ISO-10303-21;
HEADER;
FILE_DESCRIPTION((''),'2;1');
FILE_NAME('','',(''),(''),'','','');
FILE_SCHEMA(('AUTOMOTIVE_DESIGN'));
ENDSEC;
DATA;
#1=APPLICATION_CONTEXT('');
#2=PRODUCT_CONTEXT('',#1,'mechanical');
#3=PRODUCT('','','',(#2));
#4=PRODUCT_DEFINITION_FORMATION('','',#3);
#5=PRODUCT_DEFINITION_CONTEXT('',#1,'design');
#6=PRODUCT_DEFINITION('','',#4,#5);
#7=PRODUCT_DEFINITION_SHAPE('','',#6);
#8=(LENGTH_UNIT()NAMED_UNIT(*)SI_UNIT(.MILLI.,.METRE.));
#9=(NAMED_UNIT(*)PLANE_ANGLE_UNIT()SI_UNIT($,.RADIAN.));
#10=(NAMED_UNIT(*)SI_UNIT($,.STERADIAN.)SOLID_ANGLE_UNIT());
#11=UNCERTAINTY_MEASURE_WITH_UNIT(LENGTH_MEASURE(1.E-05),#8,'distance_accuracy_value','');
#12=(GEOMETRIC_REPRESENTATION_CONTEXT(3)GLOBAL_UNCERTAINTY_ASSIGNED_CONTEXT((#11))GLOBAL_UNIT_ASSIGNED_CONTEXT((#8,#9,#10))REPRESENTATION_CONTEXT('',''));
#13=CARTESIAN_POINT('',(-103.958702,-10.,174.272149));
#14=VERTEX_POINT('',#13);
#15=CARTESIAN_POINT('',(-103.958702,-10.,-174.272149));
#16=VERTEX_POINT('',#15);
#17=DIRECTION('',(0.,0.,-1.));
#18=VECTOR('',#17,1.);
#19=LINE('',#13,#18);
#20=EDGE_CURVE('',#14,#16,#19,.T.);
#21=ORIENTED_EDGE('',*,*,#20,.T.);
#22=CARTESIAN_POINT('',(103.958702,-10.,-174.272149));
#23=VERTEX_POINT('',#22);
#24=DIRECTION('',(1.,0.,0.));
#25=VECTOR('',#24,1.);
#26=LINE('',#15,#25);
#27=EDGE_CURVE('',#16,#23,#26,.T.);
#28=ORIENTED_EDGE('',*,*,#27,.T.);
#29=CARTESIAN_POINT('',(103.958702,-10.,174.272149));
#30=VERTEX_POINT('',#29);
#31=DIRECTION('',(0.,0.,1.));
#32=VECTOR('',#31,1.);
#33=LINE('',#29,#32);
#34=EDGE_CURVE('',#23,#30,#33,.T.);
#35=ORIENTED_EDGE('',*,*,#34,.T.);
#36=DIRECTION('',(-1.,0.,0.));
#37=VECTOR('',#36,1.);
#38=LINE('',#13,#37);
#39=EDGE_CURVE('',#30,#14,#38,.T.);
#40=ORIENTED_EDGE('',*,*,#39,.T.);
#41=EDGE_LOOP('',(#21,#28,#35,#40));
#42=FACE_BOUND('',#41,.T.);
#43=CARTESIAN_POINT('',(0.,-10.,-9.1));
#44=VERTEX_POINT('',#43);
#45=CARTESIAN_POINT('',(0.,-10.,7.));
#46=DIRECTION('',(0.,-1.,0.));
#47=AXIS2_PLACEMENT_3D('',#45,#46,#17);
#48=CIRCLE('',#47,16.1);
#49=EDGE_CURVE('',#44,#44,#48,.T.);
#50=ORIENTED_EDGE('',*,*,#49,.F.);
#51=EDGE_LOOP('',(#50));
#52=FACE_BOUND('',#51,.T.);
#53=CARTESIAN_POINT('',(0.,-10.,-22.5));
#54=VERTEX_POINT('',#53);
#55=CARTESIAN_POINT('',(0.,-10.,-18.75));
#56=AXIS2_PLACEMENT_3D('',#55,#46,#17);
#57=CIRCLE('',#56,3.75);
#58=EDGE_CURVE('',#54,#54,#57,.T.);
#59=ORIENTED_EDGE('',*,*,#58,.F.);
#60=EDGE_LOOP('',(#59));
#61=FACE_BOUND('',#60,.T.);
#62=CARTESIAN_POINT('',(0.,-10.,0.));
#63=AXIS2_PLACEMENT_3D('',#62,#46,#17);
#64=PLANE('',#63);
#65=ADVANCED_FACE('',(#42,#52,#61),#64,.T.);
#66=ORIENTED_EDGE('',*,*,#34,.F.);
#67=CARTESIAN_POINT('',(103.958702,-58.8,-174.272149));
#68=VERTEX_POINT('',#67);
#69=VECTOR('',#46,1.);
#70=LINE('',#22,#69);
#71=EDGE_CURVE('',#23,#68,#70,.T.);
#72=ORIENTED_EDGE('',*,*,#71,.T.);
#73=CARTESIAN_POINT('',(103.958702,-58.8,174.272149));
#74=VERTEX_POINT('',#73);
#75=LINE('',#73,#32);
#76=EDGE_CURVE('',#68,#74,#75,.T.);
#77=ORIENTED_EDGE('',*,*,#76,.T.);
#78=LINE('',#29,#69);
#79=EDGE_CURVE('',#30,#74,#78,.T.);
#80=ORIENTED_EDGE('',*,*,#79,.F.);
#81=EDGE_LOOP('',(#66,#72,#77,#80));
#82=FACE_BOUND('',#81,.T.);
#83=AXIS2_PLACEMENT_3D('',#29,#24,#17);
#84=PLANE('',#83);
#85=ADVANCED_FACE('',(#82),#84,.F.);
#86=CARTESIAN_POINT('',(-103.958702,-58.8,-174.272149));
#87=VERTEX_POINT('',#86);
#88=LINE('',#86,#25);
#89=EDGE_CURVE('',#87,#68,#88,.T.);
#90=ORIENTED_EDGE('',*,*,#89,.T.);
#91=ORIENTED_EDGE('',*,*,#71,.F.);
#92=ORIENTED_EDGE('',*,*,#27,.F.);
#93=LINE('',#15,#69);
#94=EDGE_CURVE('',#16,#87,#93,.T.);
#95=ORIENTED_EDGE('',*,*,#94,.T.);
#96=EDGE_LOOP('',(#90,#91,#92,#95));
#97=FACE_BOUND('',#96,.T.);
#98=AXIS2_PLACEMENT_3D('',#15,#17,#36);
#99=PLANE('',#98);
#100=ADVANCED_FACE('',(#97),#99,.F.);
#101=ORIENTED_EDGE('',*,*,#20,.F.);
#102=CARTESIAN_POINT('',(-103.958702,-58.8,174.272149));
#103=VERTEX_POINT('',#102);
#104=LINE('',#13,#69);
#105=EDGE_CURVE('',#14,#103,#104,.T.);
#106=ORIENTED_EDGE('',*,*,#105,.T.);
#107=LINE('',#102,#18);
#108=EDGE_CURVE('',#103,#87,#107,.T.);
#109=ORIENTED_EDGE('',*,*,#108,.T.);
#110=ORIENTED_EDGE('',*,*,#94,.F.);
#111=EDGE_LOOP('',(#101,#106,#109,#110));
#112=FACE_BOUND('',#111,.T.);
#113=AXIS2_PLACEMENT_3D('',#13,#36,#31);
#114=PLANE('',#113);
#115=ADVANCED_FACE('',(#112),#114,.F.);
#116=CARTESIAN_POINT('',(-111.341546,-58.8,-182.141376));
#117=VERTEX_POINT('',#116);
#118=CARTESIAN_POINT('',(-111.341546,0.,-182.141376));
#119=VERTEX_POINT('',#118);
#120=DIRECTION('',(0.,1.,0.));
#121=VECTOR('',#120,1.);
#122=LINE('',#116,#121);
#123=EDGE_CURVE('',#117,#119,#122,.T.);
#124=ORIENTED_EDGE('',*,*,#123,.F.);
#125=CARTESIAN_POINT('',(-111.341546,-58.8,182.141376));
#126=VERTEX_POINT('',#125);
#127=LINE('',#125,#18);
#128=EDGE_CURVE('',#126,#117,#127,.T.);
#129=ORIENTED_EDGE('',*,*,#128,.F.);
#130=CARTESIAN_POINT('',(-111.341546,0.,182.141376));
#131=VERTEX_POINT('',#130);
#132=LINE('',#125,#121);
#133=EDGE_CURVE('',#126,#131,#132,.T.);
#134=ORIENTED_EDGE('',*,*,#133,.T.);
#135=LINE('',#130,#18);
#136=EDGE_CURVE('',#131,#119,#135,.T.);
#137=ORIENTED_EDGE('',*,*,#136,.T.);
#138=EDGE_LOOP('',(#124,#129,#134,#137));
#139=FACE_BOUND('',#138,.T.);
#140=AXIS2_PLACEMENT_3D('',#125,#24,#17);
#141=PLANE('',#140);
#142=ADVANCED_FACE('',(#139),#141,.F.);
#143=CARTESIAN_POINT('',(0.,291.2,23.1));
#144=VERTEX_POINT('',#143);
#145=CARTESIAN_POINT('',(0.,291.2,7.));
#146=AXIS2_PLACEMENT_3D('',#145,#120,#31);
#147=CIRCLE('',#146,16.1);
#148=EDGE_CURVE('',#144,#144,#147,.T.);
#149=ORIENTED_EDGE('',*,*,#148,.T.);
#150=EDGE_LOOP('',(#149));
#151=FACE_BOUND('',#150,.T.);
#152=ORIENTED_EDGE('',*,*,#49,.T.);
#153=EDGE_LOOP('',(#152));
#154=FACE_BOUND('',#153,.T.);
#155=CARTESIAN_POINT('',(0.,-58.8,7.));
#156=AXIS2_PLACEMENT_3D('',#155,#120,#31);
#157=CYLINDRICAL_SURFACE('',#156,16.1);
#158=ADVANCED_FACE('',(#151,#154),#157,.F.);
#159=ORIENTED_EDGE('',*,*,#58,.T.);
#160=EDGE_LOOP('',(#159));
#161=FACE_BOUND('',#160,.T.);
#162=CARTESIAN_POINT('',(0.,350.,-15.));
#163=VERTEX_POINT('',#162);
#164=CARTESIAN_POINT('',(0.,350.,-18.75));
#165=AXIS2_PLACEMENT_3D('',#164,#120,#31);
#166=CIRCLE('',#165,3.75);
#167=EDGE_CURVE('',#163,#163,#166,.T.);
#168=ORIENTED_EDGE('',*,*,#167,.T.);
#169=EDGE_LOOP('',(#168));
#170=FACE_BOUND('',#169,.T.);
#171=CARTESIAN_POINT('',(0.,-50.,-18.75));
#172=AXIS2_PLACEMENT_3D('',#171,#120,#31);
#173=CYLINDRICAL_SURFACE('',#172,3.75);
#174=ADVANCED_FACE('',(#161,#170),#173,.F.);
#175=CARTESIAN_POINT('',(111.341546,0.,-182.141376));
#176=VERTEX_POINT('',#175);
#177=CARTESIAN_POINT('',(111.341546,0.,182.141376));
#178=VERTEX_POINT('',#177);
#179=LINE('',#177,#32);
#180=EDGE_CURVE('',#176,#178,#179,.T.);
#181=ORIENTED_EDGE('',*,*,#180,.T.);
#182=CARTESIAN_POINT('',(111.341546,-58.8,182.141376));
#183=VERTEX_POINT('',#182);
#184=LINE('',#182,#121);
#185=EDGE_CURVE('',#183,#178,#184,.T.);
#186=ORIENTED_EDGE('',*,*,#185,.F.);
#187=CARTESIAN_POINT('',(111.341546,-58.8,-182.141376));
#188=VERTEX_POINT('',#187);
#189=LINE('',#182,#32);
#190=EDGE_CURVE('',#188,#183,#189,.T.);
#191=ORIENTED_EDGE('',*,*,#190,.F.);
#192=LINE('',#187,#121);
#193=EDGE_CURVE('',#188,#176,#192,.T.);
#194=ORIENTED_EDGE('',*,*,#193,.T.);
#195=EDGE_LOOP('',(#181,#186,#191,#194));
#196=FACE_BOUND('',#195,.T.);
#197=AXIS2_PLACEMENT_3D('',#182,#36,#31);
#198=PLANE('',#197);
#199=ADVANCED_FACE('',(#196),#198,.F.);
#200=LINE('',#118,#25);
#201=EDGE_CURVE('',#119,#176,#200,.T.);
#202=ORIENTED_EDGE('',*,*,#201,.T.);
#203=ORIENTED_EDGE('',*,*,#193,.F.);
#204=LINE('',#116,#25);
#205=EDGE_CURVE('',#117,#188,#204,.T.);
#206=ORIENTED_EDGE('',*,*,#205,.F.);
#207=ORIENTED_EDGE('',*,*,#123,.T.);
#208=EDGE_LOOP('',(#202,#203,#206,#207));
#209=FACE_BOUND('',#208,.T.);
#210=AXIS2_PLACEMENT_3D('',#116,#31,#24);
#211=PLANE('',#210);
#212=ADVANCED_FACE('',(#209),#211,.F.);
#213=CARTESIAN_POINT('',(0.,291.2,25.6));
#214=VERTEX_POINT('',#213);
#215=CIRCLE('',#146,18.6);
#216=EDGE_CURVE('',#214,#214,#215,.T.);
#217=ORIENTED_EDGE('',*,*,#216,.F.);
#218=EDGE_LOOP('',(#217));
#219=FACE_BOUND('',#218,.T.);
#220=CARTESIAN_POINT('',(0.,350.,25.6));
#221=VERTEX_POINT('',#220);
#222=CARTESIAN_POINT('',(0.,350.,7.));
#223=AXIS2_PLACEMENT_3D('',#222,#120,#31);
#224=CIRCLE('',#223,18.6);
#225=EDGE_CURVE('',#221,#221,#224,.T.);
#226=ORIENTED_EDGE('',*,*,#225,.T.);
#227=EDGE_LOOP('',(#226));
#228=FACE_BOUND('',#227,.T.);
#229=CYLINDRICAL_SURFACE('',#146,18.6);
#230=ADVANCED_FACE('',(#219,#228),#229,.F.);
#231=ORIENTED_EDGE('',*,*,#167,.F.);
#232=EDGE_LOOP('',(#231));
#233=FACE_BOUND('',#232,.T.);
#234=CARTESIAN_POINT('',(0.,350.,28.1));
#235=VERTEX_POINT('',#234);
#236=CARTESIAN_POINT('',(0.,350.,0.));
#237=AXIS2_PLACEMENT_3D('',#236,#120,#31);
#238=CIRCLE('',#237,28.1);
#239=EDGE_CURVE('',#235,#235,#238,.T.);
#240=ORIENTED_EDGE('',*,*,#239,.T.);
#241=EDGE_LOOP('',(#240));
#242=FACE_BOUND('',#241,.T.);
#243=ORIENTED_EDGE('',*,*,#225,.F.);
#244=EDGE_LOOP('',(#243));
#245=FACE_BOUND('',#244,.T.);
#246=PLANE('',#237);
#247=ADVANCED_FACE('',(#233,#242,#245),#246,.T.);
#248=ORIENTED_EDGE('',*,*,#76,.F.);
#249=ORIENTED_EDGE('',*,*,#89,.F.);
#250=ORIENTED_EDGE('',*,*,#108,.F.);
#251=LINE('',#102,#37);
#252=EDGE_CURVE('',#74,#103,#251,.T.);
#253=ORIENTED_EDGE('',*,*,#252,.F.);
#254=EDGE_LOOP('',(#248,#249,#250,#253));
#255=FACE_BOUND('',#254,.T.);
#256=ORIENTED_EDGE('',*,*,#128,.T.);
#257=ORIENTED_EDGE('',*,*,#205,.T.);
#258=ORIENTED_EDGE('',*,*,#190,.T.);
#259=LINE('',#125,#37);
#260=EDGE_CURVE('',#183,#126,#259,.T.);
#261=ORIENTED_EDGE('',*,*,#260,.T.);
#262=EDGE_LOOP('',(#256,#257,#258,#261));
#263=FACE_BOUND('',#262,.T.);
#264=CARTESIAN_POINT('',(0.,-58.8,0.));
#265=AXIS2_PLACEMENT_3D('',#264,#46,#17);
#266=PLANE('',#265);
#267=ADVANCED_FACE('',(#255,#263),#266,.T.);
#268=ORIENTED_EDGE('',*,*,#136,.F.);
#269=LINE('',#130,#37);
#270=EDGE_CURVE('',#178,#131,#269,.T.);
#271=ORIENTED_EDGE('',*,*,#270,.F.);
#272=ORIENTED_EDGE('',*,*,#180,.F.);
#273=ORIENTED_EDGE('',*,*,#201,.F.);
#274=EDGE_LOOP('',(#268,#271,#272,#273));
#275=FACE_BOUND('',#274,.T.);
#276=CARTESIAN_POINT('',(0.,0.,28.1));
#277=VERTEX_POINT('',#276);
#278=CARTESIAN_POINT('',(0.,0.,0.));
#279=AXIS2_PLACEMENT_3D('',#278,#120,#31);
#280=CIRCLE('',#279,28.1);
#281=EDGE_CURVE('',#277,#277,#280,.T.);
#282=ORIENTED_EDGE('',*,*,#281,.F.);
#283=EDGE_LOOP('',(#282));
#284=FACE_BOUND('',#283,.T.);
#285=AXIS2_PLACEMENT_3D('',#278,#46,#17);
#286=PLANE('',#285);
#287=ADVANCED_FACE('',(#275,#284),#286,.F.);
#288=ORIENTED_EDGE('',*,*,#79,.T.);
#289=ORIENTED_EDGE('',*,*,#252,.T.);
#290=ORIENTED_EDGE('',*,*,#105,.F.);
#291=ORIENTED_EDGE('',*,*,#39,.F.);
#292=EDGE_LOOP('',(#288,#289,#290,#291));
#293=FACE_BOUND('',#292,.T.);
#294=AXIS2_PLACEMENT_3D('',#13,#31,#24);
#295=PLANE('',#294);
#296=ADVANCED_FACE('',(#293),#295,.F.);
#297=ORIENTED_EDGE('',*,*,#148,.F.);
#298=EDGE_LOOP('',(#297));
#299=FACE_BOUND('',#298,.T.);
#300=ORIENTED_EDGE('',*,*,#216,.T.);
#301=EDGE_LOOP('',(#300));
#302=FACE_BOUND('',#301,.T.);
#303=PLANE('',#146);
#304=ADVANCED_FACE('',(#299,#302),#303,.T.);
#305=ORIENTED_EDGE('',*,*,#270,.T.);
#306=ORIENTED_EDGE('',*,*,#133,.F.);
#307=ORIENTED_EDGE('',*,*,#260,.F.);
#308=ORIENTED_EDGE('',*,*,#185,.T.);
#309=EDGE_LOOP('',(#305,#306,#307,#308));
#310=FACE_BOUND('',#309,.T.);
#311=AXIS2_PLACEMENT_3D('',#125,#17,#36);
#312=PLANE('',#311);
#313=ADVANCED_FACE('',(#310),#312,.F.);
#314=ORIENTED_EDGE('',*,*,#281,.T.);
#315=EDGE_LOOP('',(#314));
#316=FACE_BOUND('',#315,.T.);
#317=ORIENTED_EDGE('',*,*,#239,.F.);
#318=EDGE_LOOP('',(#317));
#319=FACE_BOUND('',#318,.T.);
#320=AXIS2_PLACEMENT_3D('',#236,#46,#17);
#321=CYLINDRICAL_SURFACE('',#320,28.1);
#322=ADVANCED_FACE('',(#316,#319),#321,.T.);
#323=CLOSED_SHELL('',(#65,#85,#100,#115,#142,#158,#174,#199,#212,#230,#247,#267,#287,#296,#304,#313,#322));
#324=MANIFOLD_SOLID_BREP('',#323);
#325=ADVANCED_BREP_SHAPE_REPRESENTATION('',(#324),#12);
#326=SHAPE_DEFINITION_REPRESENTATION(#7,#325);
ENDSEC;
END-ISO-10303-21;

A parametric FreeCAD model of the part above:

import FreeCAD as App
import Part
import Sketcher
Q = App.Units.Quantity


def add_polygon(sketch, points):
    """Adds a closed chain of lines whose ends are joined by coincident constraints."""
    first, n = sketch.GeometryCount, len(points)
    for a, b in zip(points, points[1:] + points[:1]):
        sketch.addGeometry(Part.LineSegment(App.Vector(*a, 0), App.Vector(*b, 0)), False)
    for i in range(n):
        sketch.addConstraint(Sketcher.Constraint("Coincident", first + i, 2, first + (i + 1) % n, 1))

doc = App.newDocument("Part")
body = doc.addObject("PartDesign::Body", "Body")

# Sketch on XZ plane
sketch1 = body.newObject("Sketcher::SketchObject", "Sketch")
sketch1.AttachmentSupport = (doc.getObject("XZ_Plane"), [""])
sketch1.MapMode = "FlatFace"
sketch1.addGeometry(Part.Circle(App.Vector(0, 0, 0), App.Vector(0, 0, 1), 28.1), False)
sketch1.addConstraint([
    Sketcher.Constraint("Coincident", 0, 3, -1, 1),
    Sketcher.Constraint("Diameter", 0, Q("56.2 mm")),
])
pad1 = body.newObject("PartDesign::Pad", "Pad")
pad1.Profile = sketch1
pad1.Length = 350
pad1.Reversed = True

# Sketch on XZ plane
sketch2 = body.newObject("Sketcher::SketchObject", "Sketch001")
sketch2.AttachmentSupport = (doc.getObject("XZ_Plane"), [""])
sketch2.MapMode = "FlatFace"
sketch2.AttachmentOffset = App.Placement(App.Vector(0, 0, -350), App.Rotation())
sketch2.addGeometry(Part.Circle(App.Vector(0, 7, 0), App.Vector(0, 0, 1), 18.6), False)
sketch2.addConstraint([
    Sketcher.Constraint("PointOnObject", 0, 3, -2),
    Sketcher.Constraint("Diameter", 0, Q("37.2 mm")),
    Sketcher.Constraint("DistanceY", -1, 1, 0, 3, Q("7 mm")),
])
pocket1 = body.newObject("PartDesign::Pocket", "Pocket")
pocket1.Profile = sketch2
pocket1.Length = 58.8
pocket1.Reversed = True

# Sketch on XZ plane
sketch3 = body.newObject("Sketcher::SketchObject", "Sketch002")
sketch3.AttachmentSupport = (doc.getObject("XZ_Plane"), [""])
sketch3.MapMode = "FlatFace"
add_polygon(sketch3, [(111.341546, -182.141376), (111.341546, 182.141376), (-111.341546, 182.141376), (-111.341546, -182.141376)])  # lines 0-3
sketch3.addConstraint([
    Sketcher.Constraint("Vertical", 0),
    Sketcher.Constraint("Horizontal", 1),
    Sketcher.Constraint("Vertical", 2),
    Sketcher.Constraint("Horizontal", 3),
    Sketcher.Constraint("Symmetric", 0, 2, 2, 2, -1, 1),
    Sketcher.Constraint("DistanceX", 1, 2, 1, 1, Q("222.683092 mm")),
    Sketcher.Constraint("DistanceY", 0, 1, 0, 2, Q("364.282752 mm")),
])
pad2 = body.newObject("PartDesign::Pad", "Pad001")
pad2.Profile = sketch3
pad2.Length = 58.8

# Sketch on XZ plane
sketch4 = body.newObject("Sketcher::SketchObject", "Sketch003")
sketch4.AttachmentSupport = (doc.getObject("XZ_Plane"), [""])
sketch4.MapMode = "FlatFace"
sketch4.AttachmentOffset = App.Placement(App.Vector(0, 0, 58.8), App.Rotation())
add_polygon(sketch4, [(103.958702, -174.272149), (103.958702, 174.272149), (-103.958702, 174.272149), (-103.958702, -174.272149)])  # lines 0-3
sketch4.addConstraint([
    Sketcher.Constraint("Vertical", 0),
    Sketcher.Constraint("Horizontal", 1),
    Sketcher.Constraint("Vertical", 2),
    Sketcher.Constraint("Horizontal", 3),
    Sketcher.Constraint("Symmetric", 0, 2, 2, 2, -1, 1),
    Sketcher.Constraint("DistanceX", -1, 1, 0, 2, Q("103.958702 mm")),
    Sketcher.Constraint("DistanceY", 0, 1, 0, 2, Q("348.544298 mm")),
])
pocket2 = body.newObject("PartDesign::Pocket", "Pocket001")
pocket2.Profile = sketch4
pocket2.Length = 48.8

# Sketch on XZ plane
sketch5 = body.newObject("Sketcher::SketchObject", "Sketch004")
sketch5.AttachmentSupport = (doc.getObject("XZ_Plane"), [""])
sketch5.MapMode = "FlatFace"
sketch5.AttachmentOffset = App.Placement(App.Vector(0, 0, -291.2), App.Rotation())
sketch5.addGeometry(Part.Circle(App.Vector(0, 7, 0), App.Vector(0, 0, 1), 16.1), False)
sketch5.addConstraint([
    Sketcher.Constraint("PointOnObject", 0, 3, -2),
    Sketcher.Constraint("Diameter", 0, Q("32.2 mm")),
    Sketcher.Constraint("DistanceY", -1, 1, 0, 3, Q("7 mm")),
])
pocket3 = body.newObject("PartDesign::Pocket", "Pocket002")
pocket3.Profile = sketch5
pocket3.Length = 350
pocket3.Reversed = True

# Sketch on XZ plane
sketch6 = body.newObject("Sketcher::SketchObject", "Sketch005")
sketch6.AttachmentSupport = (doc.getObject("XZ_Plane"), [""])
sketch6.MapMode = "FlatFace"
sketch6.AttachmentOffset = App.Placement(App.Vector(0, 0, -350), App.Rotation())
sketch6.addGeometry(Part.Circle(App.Vector(0, -18.75, 0), App.Vector(0, 0, 1), 3.75), False)
sketch6.addConstraint([
    Sketcher.Constraint("PointOnObject", 0, 3, -2),
    Sketcher.Constraint("Diameter", 0, Q("7.5 mm")),
    Sketcher.Constraint("DistanceY", 0, 3, -1, 1, Q("18.75 mm")),
])
pocket4 = body.newObject("PartDesign::Pocket", "Pocket003")
pocket4.Profile = sketch6
pocket4.Length = 400
pocket4.Reversed = True

doc.recompute()
